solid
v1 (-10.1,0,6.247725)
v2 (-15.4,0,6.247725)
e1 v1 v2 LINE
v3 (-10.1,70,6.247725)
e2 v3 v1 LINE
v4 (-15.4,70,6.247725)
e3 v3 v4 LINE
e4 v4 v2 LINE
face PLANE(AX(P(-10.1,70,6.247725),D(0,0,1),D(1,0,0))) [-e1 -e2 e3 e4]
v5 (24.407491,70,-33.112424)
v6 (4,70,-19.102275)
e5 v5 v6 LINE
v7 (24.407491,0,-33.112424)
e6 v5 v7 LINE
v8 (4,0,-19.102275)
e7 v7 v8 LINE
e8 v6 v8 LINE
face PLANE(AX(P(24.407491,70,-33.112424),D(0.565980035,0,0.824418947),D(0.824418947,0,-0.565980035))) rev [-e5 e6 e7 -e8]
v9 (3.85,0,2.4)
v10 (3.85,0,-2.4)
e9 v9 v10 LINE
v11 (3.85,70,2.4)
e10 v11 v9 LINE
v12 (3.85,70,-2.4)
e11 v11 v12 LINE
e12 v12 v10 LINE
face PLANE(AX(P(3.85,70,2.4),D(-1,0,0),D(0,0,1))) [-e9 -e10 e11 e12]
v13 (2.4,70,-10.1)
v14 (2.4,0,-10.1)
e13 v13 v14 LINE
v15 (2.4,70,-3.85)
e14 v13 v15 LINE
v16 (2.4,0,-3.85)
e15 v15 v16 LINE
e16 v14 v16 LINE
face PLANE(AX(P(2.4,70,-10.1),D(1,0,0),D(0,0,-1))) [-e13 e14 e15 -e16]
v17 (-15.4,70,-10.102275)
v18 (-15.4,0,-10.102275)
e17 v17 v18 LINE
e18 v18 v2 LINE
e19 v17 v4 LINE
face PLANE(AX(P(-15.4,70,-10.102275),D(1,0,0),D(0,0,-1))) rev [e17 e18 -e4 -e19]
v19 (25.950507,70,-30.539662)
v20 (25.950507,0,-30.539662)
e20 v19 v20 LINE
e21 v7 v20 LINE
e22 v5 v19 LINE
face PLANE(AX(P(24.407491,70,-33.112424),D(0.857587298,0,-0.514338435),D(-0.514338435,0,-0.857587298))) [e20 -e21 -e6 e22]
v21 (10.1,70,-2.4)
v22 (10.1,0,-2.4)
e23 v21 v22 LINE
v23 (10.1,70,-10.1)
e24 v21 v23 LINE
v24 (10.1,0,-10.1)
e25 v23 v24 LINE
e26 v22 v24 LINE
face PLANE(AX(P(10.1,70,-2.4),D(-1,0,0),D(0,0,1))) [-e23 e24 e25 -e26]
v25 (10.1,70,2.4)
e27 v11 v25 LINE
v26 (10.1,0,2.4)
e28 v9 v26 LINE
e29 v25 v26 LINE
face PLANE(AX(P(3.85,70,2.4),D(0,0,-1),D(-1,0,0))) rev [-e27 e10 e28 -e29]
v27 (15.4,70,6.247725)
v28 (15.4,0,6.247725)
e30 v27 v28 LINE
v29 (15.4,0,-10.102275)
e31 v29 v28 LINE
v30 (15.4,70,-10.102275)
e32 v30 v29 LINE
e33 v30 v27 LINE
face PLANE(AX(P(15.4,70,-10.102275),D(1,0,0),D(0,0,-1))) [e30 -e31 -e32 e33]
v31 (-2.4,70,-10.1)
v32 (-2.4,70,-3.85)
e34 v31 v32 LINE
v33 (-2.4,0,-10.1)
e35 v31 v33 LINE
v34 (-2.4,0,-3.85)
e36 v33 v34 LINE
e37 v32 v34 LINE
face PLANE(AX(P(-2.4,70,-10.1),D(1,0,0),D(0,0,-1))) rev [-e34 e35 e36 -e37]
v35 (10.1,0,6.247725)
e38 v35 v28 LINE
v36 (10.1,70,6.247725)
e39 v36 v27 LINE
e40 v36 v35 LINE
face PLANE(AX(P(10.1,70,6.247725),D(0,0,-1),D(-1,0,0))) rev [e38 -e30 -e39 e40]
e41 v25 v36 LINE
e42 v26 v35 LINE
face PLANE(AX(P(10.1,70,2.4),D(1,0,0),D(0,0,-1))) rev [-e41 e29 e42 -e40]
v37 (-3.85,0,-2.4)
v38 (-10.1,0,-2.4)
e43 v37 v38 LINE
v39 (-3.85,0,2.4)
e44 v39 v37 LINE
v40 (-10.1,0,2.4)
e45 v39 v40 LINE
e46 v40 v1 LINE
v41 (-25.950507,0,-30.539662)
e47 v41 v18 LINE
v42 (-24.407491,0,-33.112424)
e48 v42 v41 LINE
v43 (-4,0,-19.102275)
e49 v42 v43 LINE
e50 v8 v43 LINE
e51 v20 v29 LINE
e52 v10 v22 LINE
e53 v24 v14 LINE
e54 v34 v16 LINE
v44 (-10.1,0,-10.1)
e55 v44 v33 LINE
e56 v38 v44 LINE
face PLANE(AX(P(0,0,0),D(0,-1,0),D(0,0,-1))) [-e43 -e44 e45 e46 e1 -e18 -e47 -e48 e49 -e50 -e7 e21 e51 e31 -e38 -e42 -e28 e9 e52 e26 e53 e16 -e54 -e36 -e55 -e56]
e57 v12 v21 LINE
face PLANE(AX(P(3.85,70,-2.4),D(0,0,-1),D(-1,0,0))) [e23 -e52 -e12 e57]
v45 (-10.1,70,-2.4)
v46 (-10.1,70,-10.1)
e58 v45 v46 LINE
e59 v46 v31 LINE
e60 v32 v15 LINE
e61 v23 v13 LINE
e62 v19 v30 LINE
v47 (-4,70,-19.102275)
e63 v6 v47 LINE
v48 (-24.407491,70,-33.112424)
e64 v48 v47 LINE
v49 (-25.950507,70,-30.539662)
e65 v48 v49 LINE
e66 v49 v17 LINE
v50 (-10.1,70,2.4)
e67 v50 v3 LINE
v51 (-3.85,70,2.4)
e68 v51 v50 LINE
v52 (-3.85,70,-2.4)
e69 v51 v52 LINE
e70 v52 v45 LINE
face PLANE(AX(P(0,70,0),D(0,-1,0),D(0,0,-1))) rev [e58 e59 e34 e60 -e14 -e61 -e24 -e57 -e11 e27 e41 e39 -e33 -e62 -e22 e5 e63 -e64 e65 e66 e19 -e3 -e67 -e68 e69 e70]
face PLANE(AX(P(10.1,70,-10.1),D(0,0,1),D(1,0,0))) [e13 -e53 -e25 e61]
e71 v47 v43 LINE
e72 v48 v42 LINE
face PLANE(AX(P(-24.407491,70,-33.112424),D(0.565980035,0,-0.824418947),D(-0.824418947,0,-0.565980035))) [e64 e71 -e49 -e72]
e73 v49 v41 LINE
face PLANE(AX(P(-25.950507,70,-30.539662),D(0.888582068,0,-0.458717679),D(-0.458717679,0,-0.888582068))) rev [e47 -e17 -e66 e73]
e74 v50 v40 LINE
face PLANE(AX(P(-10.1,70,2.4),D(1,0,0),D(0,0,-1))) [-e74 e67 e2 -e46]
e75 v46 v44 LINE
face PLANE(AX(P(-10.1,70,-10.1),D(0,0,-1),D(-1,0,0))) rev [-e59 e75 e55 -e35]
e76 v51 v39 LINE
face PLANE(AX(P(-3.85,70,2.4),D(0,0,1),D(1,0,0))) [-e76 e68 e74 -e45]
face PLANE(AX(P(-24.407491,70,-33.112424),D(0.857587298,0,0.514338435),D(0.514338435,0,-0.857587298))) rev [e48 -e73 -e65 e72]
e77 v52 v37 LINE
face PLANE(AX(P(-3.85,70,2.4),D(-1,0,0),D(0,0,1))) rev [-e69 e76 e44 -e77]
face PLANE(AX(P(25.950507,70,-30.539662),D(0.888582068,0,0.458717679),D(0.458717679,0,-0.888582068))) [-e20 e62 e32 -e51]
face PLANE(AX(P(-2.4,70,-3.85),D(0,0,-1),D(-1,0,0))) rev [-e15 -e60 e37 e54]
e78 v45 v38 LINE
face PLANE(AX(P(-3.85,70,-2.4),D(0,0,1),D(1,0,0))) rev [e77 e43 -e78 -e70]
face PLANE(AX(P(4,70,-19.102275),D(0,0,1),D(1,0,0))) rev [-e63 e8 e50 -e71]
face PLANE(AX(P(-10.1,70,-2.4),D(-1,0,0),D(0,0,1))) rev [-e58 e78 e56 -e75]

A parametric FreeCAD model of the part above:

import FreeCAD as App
import Part
import Sketcher


def add_polygon(sketch, points):
    """Adds a closed chain of lines whose ends are joined by coincident constraints."""
    first, n = sketch.GeometryCount, len(points)
    for a, b in zip(points, points[1:] + points[:1]):
        sketch.addGeometry(Part.LineSegment(App.Vector(*a, 0), App.Vector(*b, 0)), False)
    for i in range(n):
        sketch.addConstraint(Sketcher.Constraint("Coincident", first + i, 2, first + (i + 1) % n, 1))

doc = App.newDocument("Part")
params = doc.addObject("Spreadsheet::Sheet", "Params")
for row, (alias, value) in enumerate([
    ("sketch1_width", "8 mm"),
    ("sketch1_length", "23 mm"),
    ("sketch1_length2", "3 mm"),
    ("sketch1_width2", "7.7 mm"),
    ("sketch1_width3", "4.8 mm"),
    ("pad1_length", "70 mm"),
], start=1):
    params.set(f"A{row}", alias)
    params.set(f"B{row}", "=" + value)
    params.setAlias(f"B{row}", alias)

body = doc.addObject("PartDesign::Body", "Body")

# Sketch on XZ plane
sketch1 = body.newObject("Sketcher::SketchObject", "Sketch")
sketch1.AttachmentSupport = (doc.getObject("XZ_Plane"), [""])
sketch1.MapMode = "FlatFace"
add_polygon(sketch1, [(-3.85, 2.4), (-3.85, -2.4), (-10.1, -2.4), (-10.1, -10.1), (-2.4, -10.1), (-2.4, -3.85), (2.4, -3.85), (2.4, -10.1), (10.1, -10.1), (10.1, -2.4), (3.85, -2.4), (3.85, 2.4), (10.1, 2.4), (10.1, 6.247725), (15.4, 6.247725), (15.4, -10.102275), (25.950507, -30.539662), (24.407491, -33.112424), (4, -19.102275), (-4, -19.102275), (-24.407491, -33.112424), (-25.950507, -30.539662), (-15.4, -10.102275), (-15.4, 6.247725), (-10.1, 6.247725), (-10.1, 2.4)])  # lines 0-25
sketch1.addConstraint(Sketcher.Constraint("Vertical", 0))
sketch1.addConstraint(Sketcher.Constraint("Horizontal", 1))
sketch1.addConstraint(Sketcher.Constraint("Vertical", 2))
sketch1.addConstraint(Sketcher.Constraint("Horizontal", 3))
sketch1.addConstraint(Sketcher.Constraint("Vertical", 4))
sketch1.addConstraint(Sketcher.Constraint("Horizontal", 5))
sketch1.addConstraint(Sketcher.Constraint("Vertical", 6))
sketch1.addConstraint(Sketcher.Constraint("Horizontal", 7))
sketch1.addConstraint(Sketcher.Constraint("Vertical", 8))
sketch1.addConstraint(Sketcher.Constraint("Horizontal", 9))
sketch1.addConstraint(Sketcher.Constraint("Vertical", 10))
sketch1.addConstraint(Sketcher.Constraint("Horizontal", 11))
sketch1.addConstraint(Sketcher.Constraint("Vertical", 12))
sketch1.addConstraint(Sketcher.Constraint("Horizontal", 13))
sketch1.addConstraint(Sketcher.Constraint("Vertical", 14))
sketch1.addConstraint(Sketcher.Constraint("Horizontal", 18))
sketch1.addConstraint(Sketcher.Constraint("Vertical", 22))
sketch1.addConstraint(Sketcher.Constraint("Horizontal", 23))
sketch1.addConstraint(Sketcher.Constraint("Vertical", 24))
sketch1.addConstraint(Sketcher.Constraint("Horizontal", 25))
sketch1.addConstraint(Sketcher.Constraint("Symmetric", 0, 2, 10, 2, -1, 1))
sketch1.addConstraint(Sketcher.Constraint("Symmetric", 8, 2, 24, 2, -1, 1))
sketch1.addConstraint(Sketcher.Constraint("Symmetric", 3, 2, 6, 2, -2))
sketch1.addConstraint(Sketcher.Constraint("Symmetric", 1, 2, 8, 2, -2))
sketch1.addConstraint(Sketcher.Constraint("Symmetric", 16, 2, 19, 2, -2))
sketch1.addConstraint(Sketcher.Constraint("Symmetric", 15, 2, 20, 2, -2))
sketch1.addConstraint(Sketcher.Constraint("Symmetric", 14, 2, 21, 2, -2))
sketch1.addConstraint(Sketcher.Constraint("Symmetric", 12, 2, 23, 2, -2))
sketch1.addConstraint(Sketcher.Constraint("Equal", 5, 0))
sketch1.addConstraint(Sketcher.Constraint("Equal", 7, 2))
sketch1.addConstraint(Sketcher.Constraint("Equal", 25, 4))
sketch1.addConstraint(Sketcher.Constraint("Equal", 17, 19))
sketch1.addConstraint(Sketcher.Constraint("DistanceX", 18, 2, 18, 1, 8.0))
sketch1.addConstraint(Sketcher.Constraint("Distance", 15, 23.0))
sketch1.addConstraint(Sketcher.Constraint("Distance", 16, 3.0))
sketch1.addConstraint(Sketcher.Constraint("DistanceX", 3, 1, 3, 2, 7.7))
sketch1.addConstraint(Sketcher.Constraint("DistanceX", 5, 1, 5, 2, 4.8))
sketch1.addConstraint(Sketcher.Constraint("DistanceX", 13, 1, 13, 2, 5.3))
sketch1.addConstraint(Sketcher.Constraint("DistanceY", 17, 2, 14, 2, 9.0))
sketch1.addConstraint(Sketcher.Constraint("DistanceX", 1, 2, 1, 1, 6.25))
sketch1.addConstraint(Sketcher.Constraint("DistanceY", 14, 2, 14, 1, 16.35))
sketch1.addConstraint(Sketcher.Constraint("DistanceY", 12, 1, 12, 2, 3.847725))
sketch1.addConstraint(Sketcher.Constraint("DistanceX", -1, 1, 16, 2, 24.407491))
sketch1.addConstraint(Sketcher.Constraint("DistanceY", 16, 2, 15, 2, 2.572762))
sketch1.setExpression("Constraints[58]", "Params.sketch1_width")
sketch1.setExpression("Constraints[59]", "Params.sketch1_length")
sketch1.setExpression("Constraints[60]", "Params.sketch1_length2")
sketch1.setExpression("Constraints[61]", "Params.sketch1_width2")
sketch1.setExpression("Constraints[62]", "Params.sketch1_width3")
pad1 = body.newObject("PartDesign::Pad", "Pad")
pad1.Profile = sketch1
pad1.setExpression("Length", "Params.pad1_length")
pad1.Reversed = True

doc.recompute()
